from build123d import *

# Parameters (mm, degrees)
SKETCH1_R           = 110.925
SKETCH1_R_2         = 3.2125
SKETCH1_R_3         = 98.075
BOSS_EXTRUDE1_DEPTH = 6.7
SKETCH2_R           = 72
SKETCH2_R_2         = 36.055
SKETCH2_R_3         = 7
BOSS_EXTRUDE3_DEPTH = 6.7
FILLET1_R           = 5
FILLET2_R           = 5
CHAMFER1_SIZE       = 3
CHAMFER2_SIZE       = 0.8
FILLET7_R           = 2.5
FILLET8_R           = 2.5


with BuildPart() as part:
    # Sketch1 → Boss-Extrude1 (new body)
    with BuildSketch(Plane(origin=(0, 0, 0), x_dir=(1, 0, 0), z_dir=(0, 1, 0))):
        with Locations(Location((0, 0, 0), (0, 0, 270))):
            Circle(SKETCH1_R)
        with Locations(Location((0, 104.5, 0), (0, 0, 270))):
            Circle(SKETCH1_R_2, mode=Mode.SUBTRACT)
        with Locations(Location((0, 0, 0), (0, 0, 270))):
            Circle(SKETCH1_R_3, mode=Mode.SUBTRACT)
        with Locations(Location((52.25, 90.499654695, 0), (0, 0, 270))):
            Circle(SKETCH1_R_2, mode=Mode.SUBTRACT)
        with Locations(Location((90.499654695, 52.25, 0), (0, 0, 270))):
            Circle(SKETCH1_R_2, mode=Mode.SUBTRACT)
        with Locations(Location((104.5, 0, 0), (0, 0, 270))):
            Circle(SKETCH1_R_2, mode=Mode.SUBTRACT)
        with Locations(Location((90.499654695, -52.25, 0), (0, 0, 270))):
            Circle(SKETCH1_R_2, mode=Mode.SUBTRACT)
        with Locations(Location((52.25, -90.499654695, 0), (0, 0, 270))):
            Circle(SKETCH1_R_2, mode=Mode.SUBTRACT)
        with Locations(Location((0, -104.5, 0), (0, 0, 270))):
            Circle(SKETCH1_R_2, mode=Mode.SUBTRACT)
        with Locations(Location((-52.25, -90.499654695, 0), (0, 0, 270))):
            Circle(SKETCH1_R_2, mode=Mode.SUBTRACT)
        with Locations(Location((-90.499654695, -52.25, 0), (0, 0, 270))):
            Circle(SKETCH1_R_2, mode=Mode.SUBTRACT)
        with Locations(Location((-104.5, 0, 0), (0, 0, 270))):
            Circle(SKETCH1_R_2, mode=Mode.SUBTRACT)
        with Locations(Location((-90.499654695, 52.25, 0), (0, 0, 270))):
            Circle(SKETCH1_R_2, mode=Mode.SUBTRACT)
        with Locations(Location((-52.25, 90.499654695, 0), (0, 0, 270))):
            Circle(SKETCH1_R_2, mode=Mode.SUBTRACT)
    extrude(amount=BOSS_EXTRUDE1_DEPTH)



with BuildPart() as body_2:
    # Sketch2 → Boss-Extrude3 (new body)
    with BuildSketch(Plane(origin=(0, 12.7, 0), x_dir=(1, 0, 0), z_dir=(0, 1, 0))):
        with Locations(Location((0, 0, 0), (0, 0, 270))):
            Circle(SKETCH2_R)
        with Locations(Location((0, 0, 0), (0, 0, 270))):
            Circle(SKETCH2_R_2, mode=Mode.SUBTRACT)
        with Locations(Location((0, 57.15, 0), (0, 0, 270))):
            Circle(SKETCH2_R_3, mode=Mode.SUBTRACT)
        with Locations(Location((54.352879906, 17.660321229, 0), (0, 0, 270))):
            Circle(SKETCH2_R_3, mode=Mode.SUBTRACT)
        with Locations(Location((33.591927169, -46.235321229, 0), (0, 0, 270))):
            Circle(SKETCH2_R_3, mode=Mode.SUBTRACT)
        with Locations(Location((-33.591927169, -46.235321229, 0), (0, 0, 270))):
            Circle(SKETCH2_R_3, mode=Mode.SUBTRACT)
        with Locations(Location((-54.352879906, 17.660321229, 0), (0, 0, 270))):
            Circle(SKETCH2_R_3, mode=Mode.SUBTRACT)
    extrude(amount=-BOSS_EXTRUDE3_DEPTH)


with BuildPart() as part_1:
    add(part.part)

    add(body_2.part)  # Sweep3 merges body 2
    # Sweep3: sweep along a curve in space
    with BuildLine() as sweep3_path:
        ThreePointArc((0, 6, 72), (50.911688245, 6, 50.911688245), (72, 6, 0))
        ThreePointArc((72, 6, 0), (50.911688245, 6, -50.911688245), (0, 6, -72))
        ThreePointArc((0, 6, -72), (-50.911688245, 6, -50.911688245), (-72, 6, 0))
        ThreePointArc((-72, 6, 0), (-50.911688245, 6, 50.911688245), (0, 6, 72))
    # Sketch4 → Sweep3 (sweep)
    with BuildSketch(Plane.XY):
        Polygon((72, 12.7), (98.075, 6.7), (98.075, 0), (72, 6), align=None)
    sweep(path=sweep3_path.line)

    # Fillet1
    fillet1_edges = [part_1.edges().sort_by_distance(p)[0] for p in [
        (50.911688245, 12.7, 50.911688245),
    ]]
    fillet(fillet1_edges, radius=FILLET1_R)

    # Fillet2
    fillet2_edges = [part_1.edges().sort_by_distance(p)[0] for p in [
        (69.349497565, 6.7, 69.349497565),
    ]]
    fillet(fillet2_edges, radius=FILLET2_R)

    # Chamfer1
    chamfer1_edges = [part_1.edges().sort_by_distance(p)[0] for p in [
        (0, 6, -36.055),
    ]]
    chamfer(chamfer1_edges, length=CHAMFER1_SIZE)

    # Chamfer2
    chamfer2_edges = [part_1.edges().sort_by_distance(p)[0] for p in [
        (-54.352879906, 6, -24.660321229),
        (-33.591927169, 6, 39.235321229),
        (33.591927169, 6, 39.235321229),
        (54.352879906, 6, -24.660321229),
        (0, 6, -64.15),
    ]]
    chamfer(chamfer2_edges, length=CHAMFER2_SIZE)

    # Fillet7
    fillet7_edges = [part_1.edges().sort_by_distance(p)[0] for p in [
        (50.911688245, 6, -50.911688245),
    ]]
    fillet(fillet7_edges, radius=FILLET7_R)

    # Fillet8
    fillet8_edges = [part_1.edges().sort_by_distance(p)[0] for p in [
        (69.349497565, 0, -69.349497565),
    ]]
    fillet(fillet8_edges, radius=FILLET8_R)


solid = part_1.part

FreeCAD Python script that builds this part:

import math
import FreeCAD as App
import Part
import Sketcher

V = App.Vector


def edges_at(feature, points):
    """Names of the edges that pass closest to the given points."""
    edges = feature.Shape.Edges
    near = lambda p: min(range(len(edges)), key=lambda i: edges[i].distToShape(Part.Vertex(*p))[0])
    return sorted({f"Edge{near(p) + 1}" for p in points})

doc = App.newDocument("Part")
params = doc.addObject("Spreadsheet::Sheet", "Params")
for row, (alias, value) in enumerate([
    ("sketch1_diameter", "221.85 mm"),
    ("sketch1_diameter2", "196.15 mm"),
    ("pad1_length", "6.7 mm"),
    ("sketch2_diameter", "144 mm"),
    ("sketch2_diameter2", "14 mm"),
    ("sketch2_diameter3", "72.11 mm"),
    ("pad2_length", "6.7 mm"),
    ("sketch3_height", "6.7 mm"),
    ("sketch4_radius", "72 mm"),
    ("fillet_radius", "5 mm"),
    ("fillet2_radius", "5 mm"),
    ("chamfer_size", "3 mm"),
    ("chamfer2_size", "0.8 mm"),
    ("fillet3_radius", "2.5 mm"),
    ("fillet4_radius", "2.5 mm"),
], start=1):
    params.set(f"A{row}", alias)
    params.set(f"B{row}", "=" + value)
    params.setAlias(f"B{row}", alias)

body = doc.addObject("PartDesign::Body", "Body")

sketch1 = body.newObject("Sketcher::SketchObject", "Sketch")
sketch1.AttachmentSupport = (doc.getObject("XZ_Plane"), [""])
sketch1.MapMode = "FlatFace"
sketch1.addGeometry([
    Part.Circle(V(0, 0, 0), V(0, 0, 1), 110.9),
    Part.Circle(V(-90.5, -52.2, 0), V(0, 0, 1), 3.2),
    Part.Circle(V(-52.2, -90.5, 0), V(0, 0, 1), 3.2),
    Part.Circle(V(0, -104.5, 0), V(0, 0, 1), 3.2),
    Part.Circle(V(-104.5, 0, 0), V(0, 0, 1), 3.2),
    Part.Circle(V(-90.5, 52.2, 0), V(0, 0, 1), 3.2),
    Part.Circle(V(-52.2, 90.5, 0), V(0, 0, 1), 3.2),
    Part.Circle(V(52.2, -90.5, 0), V(0, 0, 1), 3.2),
    Part.Circle(V(90.5, -52.2, 0), V(0, 0, 1), 3.2),
    Part.Circle(V(104.5, 0, 0), V(0, 0, 1), 3.2),
    Part.Circle(V(0, 0, 0), V(0, 0, 1), 98.1),
    Part.Circle(V(0, 104.5, 0), V(0, 0, 1), 3.2),
    Part.Circle(V(52.2, 90.5, 0), V(0, 0, 1), 3.2),
    Part.Circle(V(90.5, 52.2, 0), V(0, 0, 1), 3.2),
], False)
sketch1.addConstraint([
    Sketcher.Constraint("Coincident", 0, 3, -1, 1),
    Sketcher.Constraint("Coincident", 10, 3, -1, 1),
    Sketcher.Constraint("Equal", 1, 2),
    Sketcher.Constraint("Equal", 2, 3),
    Sketcher.Constraint("Equal", 3, 4),
    Sketcher.Constraint("Equal", 4, 5),
    Sketcher.Constraint("Equal", 5, 6),
    Sketcher.Constraint("Equal", 6, 7),
    Sketcher.Constraint("Equal", 7, 8),
    Sketcher.Constraint("Equal", 8, 9),
    Sketcher.Constraint("Equal", 9, 11),
    Sketcher.Constraint("Equal", 11, 12),
    Sketcher.Constraint("Equal", 12, 13),
    Sketcher.Constraint("Symmetric", 6, 3, 7, 3, -1, 1),
    Sketcher.Constraint("Symmetric", 5, 3, 8, 3, -1, 1),
    Sketcher.Constraint("Symmetric", 4, 3, 9, 3, -1, 1),
    Sketcher.Constraint("Symmetric", 3, 3, 11, 3, -1, 1),
    Sketcher.Constraint("Symmetric", 2, 3, 12, 3, -1, 1),
    Sketcher.Constraint("Symmetric", 1, 3, 13, 3, -1, 1),
    Sketcher.Constraint("Symmetric", 2, 3, 7, 3, -2),
    Sketcher.Constraint("Symmetric", 1, 3, 8, 3, -2),
    Sketcher.Constraint("PointOnObject", 3, 3, -2),
    Sketcher.Constraint("PointOnObject", 4, 3, -1),
    Sketcher.Constraint("Diameter", 0, 221.85),
    Sketcher.Constraint("Diameter", 10, 196.15),
    Sketcher.Constraint("Diameter", 1, 6.425),
    Sketcher.Constraint("DistanceY", 3, 3, -1, 1, 104.5),
    Sketcher.Constraint("DistanceX", 4, 3, -1, 1, 104.5),
    Sketcher.Constraint("DistanceY", 1, 3, 5, 3, 104.5),
    Sketcher.Constraint("DistanceX", 2, 3, 7, 3, 104.5),
    Sketcher.Constraint("DistanceY", 2, 3, 6, 3, 180.999309),
    Sketcher.Constraint("DistanceX", 1, 3, 8, 3, 180.999309),
])
sketch1.setExpression("Constraints[23]", "Params.sketch1_diameter")
sketch1.setExpression("Constraints[24]", "Params.sketch1_diameter2")
pad1 = body.newObject("PartDesign::Pad", "Pad")
pad1.Profile = sketch1
pad1.setExpression("Length", "Params.pad1_length")
pad1.Reversed = True
body2 = doc.addObject("PartDesign::Body", "Body001")

sketch2 = body2.newObject("Sketcher::SketchObject", "Sketch001")
sketch2.AttachmentSupport = (doc.getObject("XZ_Plane001"), [""])
sketch2.MapMode = "FlatFace"
sketch2.AttachmentOffset = App.Placement(V(0, 0, -12.7), App.Rotation())
sketch2.addGeometry([
    Part.Circle(V(0, 0, 0), V(0, 0, 1), 72),
    Part.Circle(V(-54, -18, 0), V(0, 0, 1), 7),
    Part.Circle(V(0, -57, 0), V(0, 0, 1), 7),
    Part.Circle(V(-34, 46, 0), V(0, 0, 1), 7),
    Part.Circle(V(54, -18, 0), V(0, 0, 1), 7),
    Part.Circle(V(0, 0, 0), V(0, 0, 1), 36),
    Part.Circle(V(34, 46, 0), V(0, 0, 1), 7),
], False)
sketch2.addConstraint([
    Sketcher.Constraint("Coincident", 0, 3, -1, 1),
    Sketcher.Constraint("Coincident", 5, 3, -1, 1),
    Sketcher.Constraint("Equal", 1, 2),
    Sketcher.Constraint("Equal", 2, 3),
    Sketcher.Constraint("Equal", 3, 4),
    Sketcher.Constraint("Equal", 4, 6),
    Sketcher.Constraint("Symmetric", 1, 3, 4, 3, -2),
    Sketcher.Constraint("Symmetric", 3, 3, 6, 3, -2),
    Sketcher.Constraint("PointOnObject", 2, 3, -2),
    Sketcher.Constraint("Diameter", 0, 144.0),
    Sketcher.Constraint("Diameter", 1, 14.0),
    Sketcher.Constraint("Diameter", 5, 72.11),
    Sketcher.Constraint("DistanceY", 2, 3, -1, 1, 57.15),
    Sketcher.Constraint("DistanceX", 1, 3, -1, 1, 54.35288),
    Sketcher.Constraint("DistanceY", 1, 3, -1, 1, 17.660321),
    Sketcher.Constraint("DistanceY", -1, 1, 3, 3, 46.235321),
    Sketcher.Constraint("DistanceX", 3, 3, -1, 1, 33.591927),
])
sketch2.setExpression("Constraints[9]", "Params.sketch2_diameter")
sketch2.setExpression("Constraints[10]", "Params.sketch2_diameter2")
sketch2.setExpression("Constraints[11]", "Params.sketch2_diameter3")
pad2 = body2.newObject("PartDesign::Pad", "Pad001")
pad2.Profile = sketch2
pad2.setExpression("Length", "Params.pad2_length")
body.AllowCompound = True
doc.recompute()

boolean = body.newObject("PartDesign::Boolean", "Boolean")
boolean.Type = "Fuse"
boolean.addObjects([body2])

sketch3 = body.newObject("Sketcher::SketchObject", "Sketch002")
sketch3.AttachmentSupport = (doc.getObject("XY_Plane"), [""])
sketch3.MapMode = "FlatFace"
sketch3.addGeometry([
    Part.LineSegment(V(98, 7, 0), V(72, 13, 0)),
    Part.LineSegment(V(72, 13, 0), V(72, 6, 0)),
    Part.LineSegment(V(72, 6, 0), V(98, 0, 0)),
    Part.LineSegment(V(98, 0, 0), V(98, 7, 0)),
], False)
sketch3.addConstraint([
    Sketcher.Constraint("Coincident", 0, 2, 1, 1),
    Sketcher.Constraint("Coincident", 1, 2, 2, 1),
    Sketcher.Constraint("Coincident", 2, 2, 3, 1),
    Sketcher.Constraint("Coincident", 3, 2, 0, 1),
    Sketcher.Constraint("Vertical", 1),
    Sketcher.Constraint("Vertical", 3),
    Sketcher.Constraint("PointOnObject", 2, 2, -1),
    Sketcher.Constraint("Parallel", 0, 2),
    Sketcher.Constraint("DistanceY", 1, 2, 1, 1, 6.7),
    Sketcher.Constraint("DistanceX", -1, 1, 0, 2, 72.0),
    Sketcher.Constraint("DistanceY", -1, 1, 1, 2, 6.0),
    Sketcher.Constraint("DistanceX", -1, 1, 2, 2, 98.075),
])
sketch3.setExpression("Constraints[8]", "Params.sketch3_height")

sketch4 = body.newObject("Sketcher::SketchObject", "Sketch003")
sketch4.AttachmentSupport = (doc.getObject("XZ_Plane"), [""])
sketch4.MapMode = "FlatFace"
sketch4.AttachmentOffset = App.Placement(V(0, 0, -6), App.Rotation())
sketch4.addGeometry([
    Part.ArcOfCircle(Part.Circle(V(0, 0, 0), V(0, 0, 1), 72), math.radians(0), math.radians(90)),
    Part.ArcOfCircle(Part.Circle(V(0, 0, 0), V(0, 0, 1), 72), math.radians(-90), math.radians(0)),
    Part.ArcOfCircle(Part.Circle(V(0, 0, 0), V(0, 0, 1), 72), math.radians(-180), math.radians(-90)),
    Part.ArcOfCircle(Part.Circle(V(0, 0, 0), V(0, 0, 1), 72), math.radians(90), math.radians(180)),
], False)
sketch4.addConstraint([
    Sketcher.Constraint("Tangent", 0, 1, 1, 2),
    Sketcher.Constraint("Tangent", 1, 1, 2, 2),
    Sketcher.Constraint("Tangent", 2, 1, 3, 2),
    Sketcher.Constraint("Tangent", 3, 1, 0, 2),
    Sketcher.Constraint("Coincident", 0, 3, -1, 1),
    Sketcher.Constraint("Equal", 0, 1),
    Sketcher.Constraint("PointOnObject", 0, 1, -1),
    Sketcher.Constraint("PointOnObject", 1, 1, -2),
    Sketcher.Constraint("PointOnObject", 2, 1, -1),
    Sketcher.Constraint("PointOnObject", 3, 1, -2),
    Sketcher.Constraint("Radius", 0, 72.0),
])
sketch4.setExpression("Constraints[10]", "Params.sketch4_radius")
doc.recompute()

additivepipe = body.newObject("PartDesign::AdditivePipe", "AdditivePipe")
additivepipe.Profile = sketch3
additivepipe.Spine = (sketch4, ["Edge1", "Edge2", "Edge3", "Edge4"])
doc.recompute()

fillet = body.newObject("PartDesign::Fillet", "Fillet")
fillet.Base = (additivepipe, edges_at(additivepipe, [(50.912, 12.7, 50.912)]))
fillet.setExpression("Radius", "Params.fillet_radius")
doc.recompute()

fillet2 = body.newObject("PartDesign::Fillet", "Fillet001")
fillet2.Base = (fillet, edges_at(fillet, [(69.349, 6.7, 69.349)]))
fillet2.setExpression("Radius", "Params.fillet2_radius")
doc.recompute()

chamfer = body.newObject("PartDesign::Chamfer", "Chamfer")
chamfer.Base = (fillet2, edges_at(fillet2, [(0, 6, -36.055)]))
chamfer.setExpression("Size", "Params.chamfer_size")
doc.recompute()

chamfer2 = body.newObject("PartDesign::Chamfer", "Chamfer001")
chamfer2.Base = (chamfer, edges_at(chamfer, [
    (-54.353, 6, -24.66),
    (-33.592, 6, 39.235),
    (33.592, 6, 39.235),
    (54.353, 6, -24.66),
    (0, 6, -64.15),
]))
chamfer2.setExpression("Size", "Params.chamfer2_size")
doc.recompute()

fillet3 = body.newObject("PartDesign::Fillet", "Fillet002")
fillet3.Base = (chamfer2, edges_at(chamfer2, [(50.912, 6, -50.912)]))
fillet3.setExpression("Radius", "Params.fillet3_radius")
doc.recompute()

fillet4 = body.newObject("PartDesign::Fillet", "Fillet003")
fillet4.Base = (fillet3, edges_at(fillet3, [(69.349, 0, -69.349)]))
fillet4.setExpression("Radius", "Params.fillet4_radius")

doc.recompute()
